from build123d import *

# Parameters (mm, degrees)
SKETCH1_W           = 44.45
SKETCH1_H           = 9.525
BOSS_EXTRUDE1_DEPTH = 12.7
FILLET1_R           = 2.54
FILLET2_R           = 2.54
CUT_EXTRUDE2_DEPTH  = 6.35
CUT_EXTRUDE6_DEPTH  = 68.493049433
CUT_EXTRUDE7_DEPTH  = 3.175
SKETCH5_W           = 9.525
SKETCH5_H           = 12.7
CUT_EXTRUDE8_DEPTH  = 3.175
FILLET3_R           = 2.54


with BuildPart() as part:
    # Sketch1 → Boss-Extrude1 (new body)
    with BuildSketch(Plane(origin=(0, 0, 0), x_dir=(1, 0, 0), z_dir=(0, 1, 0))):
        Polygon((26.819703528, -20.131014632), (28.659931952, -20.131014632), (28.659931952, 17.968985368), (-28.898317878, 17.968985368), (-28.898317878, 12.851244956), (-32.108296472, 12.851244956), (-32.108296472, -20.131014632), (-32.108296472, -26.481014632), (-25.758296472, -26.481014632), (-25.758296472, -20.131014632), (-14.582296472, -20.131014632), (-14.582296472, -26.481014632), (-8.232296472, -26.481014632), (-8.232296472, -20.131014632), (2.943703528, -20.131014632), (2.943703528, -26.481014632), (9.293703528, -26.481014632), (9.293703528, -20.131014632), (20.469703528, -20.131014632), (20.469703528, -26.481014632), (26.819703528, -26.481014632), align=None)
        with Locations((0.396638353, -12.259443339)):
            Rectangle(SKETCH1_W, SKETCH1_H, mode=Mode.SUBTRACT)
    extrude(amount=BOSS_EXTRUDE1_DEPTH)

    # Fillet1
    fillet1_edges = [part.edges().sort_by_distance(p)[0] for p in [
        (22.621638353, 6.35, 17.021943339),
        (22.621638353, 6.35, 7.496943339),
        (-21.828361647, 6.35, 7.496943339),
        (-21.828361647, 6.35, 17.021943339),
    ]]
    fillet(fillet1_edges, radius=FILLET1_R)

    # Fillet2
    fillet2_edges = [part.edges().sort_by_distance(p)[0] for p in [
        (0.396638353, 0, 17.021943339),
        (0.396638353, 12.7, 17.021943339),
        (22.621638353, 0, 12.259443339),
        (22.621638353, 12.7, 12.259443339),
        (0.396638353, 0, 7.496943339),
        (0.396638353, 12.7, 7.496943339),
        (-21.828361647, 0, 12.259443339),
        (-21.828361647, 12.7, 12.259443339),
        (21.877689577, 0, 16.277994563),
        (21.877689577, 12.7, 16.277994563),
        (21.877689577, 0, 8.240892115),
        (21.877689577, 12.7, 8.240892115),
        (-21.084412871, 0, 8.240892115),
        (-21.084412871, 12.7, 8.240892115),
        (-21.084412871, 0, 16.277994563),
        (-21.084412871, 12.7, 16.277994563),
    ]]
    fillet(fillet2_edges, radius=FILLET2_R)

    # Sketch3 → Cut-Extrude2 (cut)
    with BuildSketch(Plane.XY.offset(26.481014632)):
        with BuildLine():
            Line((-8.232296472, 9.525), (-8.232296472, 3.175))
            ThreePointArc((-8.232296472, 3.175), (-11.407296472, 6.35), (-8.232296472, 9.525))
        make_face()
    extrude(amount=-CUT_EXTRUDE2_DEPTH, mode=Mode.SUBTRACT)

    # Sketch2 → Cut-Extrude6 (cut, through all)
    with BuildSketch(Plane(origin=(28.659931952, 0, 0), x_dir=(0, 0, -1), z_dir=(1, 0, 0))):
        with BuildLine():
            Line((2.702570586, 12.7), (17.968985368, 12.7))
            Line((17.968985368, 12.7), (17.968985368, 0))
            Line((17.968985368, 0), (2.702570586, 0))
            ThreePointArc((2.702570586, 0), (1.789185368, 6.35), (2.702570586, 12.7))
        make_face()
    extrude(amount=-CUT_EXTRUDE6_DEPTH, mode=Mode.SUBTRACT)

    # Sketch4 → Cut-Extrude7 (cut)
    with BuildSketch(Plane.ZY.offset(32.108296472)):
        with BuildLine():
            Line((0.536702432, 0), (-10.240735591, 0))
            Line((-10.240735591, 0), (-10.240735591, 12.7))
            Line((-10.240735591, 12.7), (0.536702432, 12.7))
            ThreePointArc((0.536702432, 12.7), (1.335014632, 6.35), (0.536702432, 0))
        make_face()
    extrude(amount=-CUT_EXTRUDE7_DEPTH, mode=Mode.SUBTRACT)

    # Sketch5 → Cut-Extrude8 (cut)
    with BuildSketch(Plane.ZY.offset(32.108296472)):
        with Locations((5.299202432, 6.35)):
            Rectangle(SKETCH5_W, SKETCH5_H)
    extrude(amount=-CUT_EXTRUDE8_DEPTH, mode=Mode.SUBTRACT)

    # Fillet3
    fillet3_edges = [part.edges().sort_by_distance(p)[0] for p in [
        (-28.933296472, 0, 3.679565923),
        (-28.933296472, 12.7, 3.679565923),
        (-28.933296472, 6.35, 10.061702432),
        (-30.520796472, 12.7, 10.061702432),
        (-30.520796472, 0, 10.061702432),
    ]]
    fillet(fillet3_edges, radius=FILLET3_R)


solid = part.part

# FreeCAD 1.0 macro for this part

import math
import FreeCAD as App
import Part
import Sketcher
Q = App.Units.Quantity


def edges_at(feature, points):
    """Names of the edges that pass closest to the given points."""
    edges = feature.Shape.Edges
    near = lambda p: min(range(len(edges)), key=lambda i: edges[i].distToShape(Part.Vertex(*p))[0])
    return sorted({f"Edge{near(p) + 1}" for p in points})


def add_polygon(sketch, points):
    """Adds a closed chain of lines whose ends are joined by coincident constraints."""
    first, n = sketch.GeometryCount, len(points)
    for a, b in zip(points, points[1:] + points[:1]):
        sketch.addGeometry(Part.LineSegment(App.Vector(*a, 0), App.Vector(*b, 0)), False)
    for i in range(n):
        sketch.addConstraint(Sketcher.Constraint("Coincident", first + i, 2, first + (i + 1) % n, 1))

doc = App.newDocument("Part")
body = doc.addObject("PartDesign::Body", "Body")

# Sketch on XZ plane
sketch1 = body.newObject("Sketcher::SketchObject", "Sketch")
sketch1.AttachmentSupport = (doc.getObject("XZ_Plane"), [""])
sketch1.MapMode = "FlatFace"
add_polygon(sketch1, [(26.819704, 20.131015), (28.659932, 20.131015), (28.659932, -17.968985), (-28.898318, -17.968985), (-28.898318, -12.851245), (-32.108296, -12.851245), (-32.108296, 26.481015), (-25.758296, 26.481015), (-25.758296, 20.131015), (-14.582296, 20.131015), (-14.582296, 26.481015), (-8.232296, 26.481015), (-8.232296, 20.131015), (2.943704, 20.131015), (2.943704, 26.481015), (9.293704, 26.481015), (9.293704, 20.131015), (20.469704, 20.131015), (20.469704, 26.481015), (26.819704, 26.481015)])  # lines 0-19
add_polygon(sketch1, [(22.621638, 17.021943), (-21.828362, 17.021943), (-21.828362, 7.496943), (22.621638, 7.496943)])  # lines 20-23
sketch1.addConstraint([
    Sketcher.Constraint("Horizontal", 0),
    Sketcher.Constraint("Vertical", 1),
    Sketcher.Constraint("Horizontal", 2),
    Sketcher.Constraint("Vertical", 3),
    Sketcher.Constraint("Horizontal", 4),
    Sketcher.Constraint("Vertical", 5),
    Sketcher.Constraint("Horizontal", 6),
    Sketcher.Constraint("Vertical", 7),
    Sketcher.Constraint("Horizontal", 8),
    Sketcher.Constraint("Vertical", 9),
    Sketcher.Constraint("Horizontal", 10),
    Sketcher.Constraint("Vertical", 11),
    Sketcher.Constraint("Horizontal", 12),
    Sketcher.Constraint("Vertical", 13),
    Sketcher.Constraint("Horizontal", 14),
    Sketcher.Constraint("Vertical", 15),
    Sketcher.Constraint("Horizontal", 16),
    Sketcher.Constraint("Vertical", 17),
    Sketcher.Constraint("Horizontal", 18),
    Sketcher.Constraint("Vertical", 19),
    Sketcher.Constraint("Horizontal", 20),
    Sketcher.Constraint("Vertical", 21),
    Sketcher.Constraint("Horizontal", 22),
    Sketcher.Constraint("Vertical", 23),
    Sketcher.Constraint("Horizontal", 0, 2, 7, 2),
    Sketcher.Constraint("Horizontal", 6, 2, 9, 2),
    Sketcher.Constraint("Horizontal", 8, 2, 11, 2),
    Sketcher.Constraint("Horizontal", 10, 2, 13, 2),
    Sketcher.Constraint("Horizontal", 12, 2, 15, 2),
    Sketcher.Constraint("Horizontal", 14, 2, 17, 2),
    Sketcher.Constraint("Equal", 6, 10),
    Sketcher.Constraint("Equal", 8, 12),
    Sketcher.Constraint("Equal", 10, 14),
    Sketcher.Constraint("Equal", 12, 16),
    Sketcher.Constraint("Equal", 14, 18),
    Sketcher.Constraint("Equal", 18, 7),
    Sketcher.Constraint("DistanceY", 1, 2, 1, 1, Q("1.5 in")),
    Sketcher.Constraint("DistanceX", 6, 1, 6, 2, Q("0.25 in")),
    Sketcher.Constraint("DistanceX", 8, 1, 8, 2, Q("0.44 in")),
    Sketcher.Constraint("DistanceX", 20, 2, 20, 1, Q("1.75 in")),
    Sketcher.Constraint("DistanceY", 21, 2, 21, 1, Q("0.375 in")),
    Sketcher.Constraint("DistanceX", 0, 1, 0, 2, Q("1.840228 mm")),
    Sketcher.Constraint("DistanceX", 2, 2, 2, 1, Q("57.55825 mm")),
    Sketcher.Constraint("DistanceY", 3, 1, 3, 2, Q("5.11774 mm")),
    Sketcher.Constraint("DistanceX", -1, 1, 0, 2, Q("28.659932 mm")),
    Sketcher.Constraint("DistanceX", 20, 2, -1, 1, Q("21.828362 mm")),
    Sketcher.Constraint("DistanceY", 20, 2, 7, 2, Q("3.109071 mm")),
    Sketcher.Constraint("DistanceY", -1, 1, 0, 2, Q("20.131015 mm")),
])
pad1 = body.newObject("PartDesign::Pad", "Pad")
pad1.Profile = sketch1
pad1.Length = Q("0.5 in")
pad1.Reversed = True
doc.recompute()

fillet = body.newObject("PartDesign::Fillet", "Fillet")
fillet.Base = (pad1, edges_at(pad1, [
    (22.622, 6.35, 17.022),
    (22.622, 6.35, 7.497),
    (-21.828, 6.35, 7.497),
    (-21.828, 6.35, 17.022),
]))
fillet.Radius = Q("0.1 in")
doc.recompute()

fillet2 = body.newObject("PartDesign::Fillet", "Fillet001")
fillet2.Base = (fillet, edges_at(fillet, [
    (0.397, 0, 17.022),
    (0.397, 12.7, 17.022),
    (22.622, 0, 12.259),
    (22.622, 12.7, 12.259),
    (0.397, 0, 7.497),
    (0.397, 12.7, 7.497),
    (-21.828, 0, 12.259),
    (-21.828, 12.7, 12.259),
    (21.878, 0, 16.278),
    (21.878, 12.7, 16.278),
    (21.878, 0, 8.241),
    (21.878, 12.7, 8.241),
    (-21.084, 0, 8.241),
    (-21.084, 12.7, 8.241),
    (-21.084, 0, 16.278),
    (-21.084, 12.7, 16.278),
]))
fillet2.Radius = Q("0.1 in")

# Sketch on XY plane
sketch2 = body.newObject("Sketcher::SketchObject", "Sketch001")
sketch2.AttachmentSupport = (doc.getObject("XY_Plane"), [""])
sketch2.MapMode = "FlatFace"
sketch2.AttachmentOffset = App.Placement(App.Vector(0, 0, 26.481015), App.Rotation())
sketch2.addGeometry([
    Part.LineSegment(App.Vector(-8.232296, 3.175, 0), App.Vector(-8.232296, 9.525, 0)),
    Part.ArcOfCircle(Part.Circle(App.Vector(-8.232296, 6.35, 0), App.Vector(0, 0, 1), 3.175), math.radians(90), math.radians(270)),
], False)
sketch2.addConstraint([
    Sketcher.Constraint("Coincident", 0, 1, 1, 2),
    Sketcher.Constraint("Coincident", 1, 1, 0, 2),
    Sketcher.Constraint("Vertical", 0),
    Sketcher.Constraint("Vertical", 1, 3, 0, 1),
    Sketcher.Constraint("Radius", 1, Q("0.125 in")),
    Sketcher.Constraint("DistanceY", -1, 1, 1, 3, Q("0.25 in")),
    Sketcher.Constraint("DistanceX", 1, 3, -1, 1, Q("8.232296 mm")),
])
pocket1 = body.newObject("PartDesign::Pocket", "Pocket")
pocket1.Profile = sketch2
pocket1.Length = Q("0.25 in")

# Sketch on YZ plane
sketch3 = body.newObject("Sketcher::SketchObject", "Sketch002")
sketch3.AttachmentSupport = (doc.getObject("YZ_Plane"), [""])
sketch3.MapMode = "FlatFace"
sketch3.AttachmentOffset = App.Placement(App.Vector(0, 0, 28.659932), App.Rotation())
sketch3.addGeometry([
    Part.LineSegment(App.Vector(12.7, -17.968985, 0), App.Vector(12.7, -2.702571, 0)),
    Part.ArcOfCircle(Part.Circle(App.Vector(6.35, -24.318985, 0), App.Vector(0, 0, 1), 22.5298), math.radians(73.629414), math.radians(106.370586)),
    Part.LineSegment(App.Vector(0, -2.702571, 0), App.Vector(0, -17.968985, 0)),
    Part.LineSegment(App.Vector(0, -17.968985, 0), App.Vector(12.7, -17.968985, 0)),
], False)
sketch3.addConstraint([
    Sketcher.Constraint("Coincident", 0, 2, 1, 1),
    Sketcher.Constraint("Coincident", 1, 2, 2, 1),
    Sketcher.Constraint("Coincident", 2, 2, 3, 1),
    Sketcher.Constraint("Coincident", 3, 2, 0, 1),
    Sketcher.Constraint("Vertical", 0),
    Sketcher.Constraint("Vertical", 2),
    Sketcher.Constraint("Horizontal", 3),
    Sketcher.Constraint("PointOnObject", 1, 2, -2),
    Sketcher.Constraint("Horizontal", 0, 2, 1, 2),
    Sketcher.Constraint("DistanceX", 3, 1, 3, 2, Q("0.5 in")),
    Sketcher.Constraint("Radius", 1, Q("0.887 in")),
    Sketcher.Constraint("DistanceY", 1, 3, 2, 2, Q("0.25 in")),
    Sketcher.Constraint("DistanceY", 0, 2, -1, 1, Q("2.702571 mm")),
])
pocket2 = body.newObject("PartDesign::Pocket", "Pocket001")
pocket2.Profile = sketch3
pocket2.Type = "ThroughAll"

# Sketch on YZ plane
sketch4 = body.newObject("Sketcher::SketchObject", "Sketch003")
sketch4.AttachmentSupport = (doc.getObject("YZ_Plane"), [""])
sketch4.MapMode = "FlatFace"
sketch4.AttachmentOffset = App.Placement(App.Vector(0, 0, -32.108296), App.Rotation())
sketch4.addGeometry([
    Part.LineSegment(App.Vector(0, -10.240736, 0), App.Vector(0, 0.536702, 0)),
    Part.ArcOfCircle(Part.Circle(App.Vector(6.35, -24.318985, 0), App.Vector(0, 0, 1), 25.654), math.radians(75.668912), math.radians(104.331088)),
    Part.LineSegment(App.Vector(12.7, 0.536702, 0), App.Vector(12.7, -10.240736, 0)),
    Part.LineSegment(App.Vector(12.7, -10.240736, 0), App.Vector(0, -10.240736, 0)),
], False)
sketch4.addConstraint([
    Sketcher.Constraint("Coincident", 0, 2, 1, 2),
    Sketcher.Constraint("Coincident", 1, 1, 2, 1),
    Sketcher.Constraint("Coincident", 2, 2, 3, 1),
    Sketcher.Constraint("Coincident", 3, 2, 0, 1),
    Sketcher.Constraint("Vertical", 0),
    Sketcher.Constraint("Vertical", 2),
    Sketcher.Constraint("Horizontal", 3),
    Sketcher.Constraint("PointOnObject", 0, 2, -2),
    Sketcher.Constraint("Horizontal", 0, 2, 1, 1),
    Sketcher.Constraint("Radius", 1, Q("1.01 in")),
    Sketcher.Constraint("DistanceX", 3, 2, 3, 1, Q("0.5 in")),
    Sketcher.Constraint("DistanceY", 0, 1, 0, 2, Q("10.777438 mm")),
    Sketcher.Constraint("DistanceY", 1, 3, -1, 1, Q("24.318985 mm")),
])
pocket3 = body.newObject("PartDesign::Pocket", "Pocket002")
pocket3.Profile = sketch4
pocket3.Length = Q("0.125 in")
pocket3.Reversed = True

# Sketch on YZ plane
sketch5 = body.newObject("Sketcher::SketchObject", "Sketch004")
sketch5.AttachmentSupport = (doc.getObject("YZ_Plane"), [""])
sketch5.MapMode = "FlatFace"
sketch5.AttachmentOffset = App.Placement(App.Vector(0, 0, -32.108296), App.Rotation())
add_polygon(sketch5, [(12.7, 0.536702), (0, 0.536702), (0, 10.061702), (12.7, 10.061702)])  # lines 0-3
sketch5.addConstraint([
    Sketcher.Constraint("Horizontal", 0),
    Sketcher.Constraint("Vertical", 1),
    Sketcher.Constraint("Horizontal", 2),
    Sketcher.Constraint("Vertical", 3),
    Sketcher.Constraint("PointOnObject", 0, 2, -2),
    Sketcher.Constraint("DistanceX", 0, 2, 0, 1, Q("0.5 in")),
    Sketcher.Constraint("DistanceY", 1, 1, 1, 2, Q("0.375 in")),
    Sketcher.Constraint("DistanceY", -1, 1, 0, 2, Q("0.536702 mm")),
])
pocket4 = body.newObject("PartDesign::Pocket", "Pocket003")
pocket4.Profile = sketch5
pocket4.Length = Q("0.125 in")
pocket4.Reversed = True
doc.recompute()

fillet3 = body.newObject("PartDesign::Fillet", "Fillet002")
fillet3.Base = (pocket4, edges_at(pocket4, [
    (-28.933, 0, 3.68),
    (-28.933, 12.7, 3.68),
    (-28.933, 6.35, 10.062),
    (-30.521, 12.7, 10.062),
    (-30.521, 0, 10.062),
]))
fillet3.Radius = Q("0.1 in")

doc.recompute()
